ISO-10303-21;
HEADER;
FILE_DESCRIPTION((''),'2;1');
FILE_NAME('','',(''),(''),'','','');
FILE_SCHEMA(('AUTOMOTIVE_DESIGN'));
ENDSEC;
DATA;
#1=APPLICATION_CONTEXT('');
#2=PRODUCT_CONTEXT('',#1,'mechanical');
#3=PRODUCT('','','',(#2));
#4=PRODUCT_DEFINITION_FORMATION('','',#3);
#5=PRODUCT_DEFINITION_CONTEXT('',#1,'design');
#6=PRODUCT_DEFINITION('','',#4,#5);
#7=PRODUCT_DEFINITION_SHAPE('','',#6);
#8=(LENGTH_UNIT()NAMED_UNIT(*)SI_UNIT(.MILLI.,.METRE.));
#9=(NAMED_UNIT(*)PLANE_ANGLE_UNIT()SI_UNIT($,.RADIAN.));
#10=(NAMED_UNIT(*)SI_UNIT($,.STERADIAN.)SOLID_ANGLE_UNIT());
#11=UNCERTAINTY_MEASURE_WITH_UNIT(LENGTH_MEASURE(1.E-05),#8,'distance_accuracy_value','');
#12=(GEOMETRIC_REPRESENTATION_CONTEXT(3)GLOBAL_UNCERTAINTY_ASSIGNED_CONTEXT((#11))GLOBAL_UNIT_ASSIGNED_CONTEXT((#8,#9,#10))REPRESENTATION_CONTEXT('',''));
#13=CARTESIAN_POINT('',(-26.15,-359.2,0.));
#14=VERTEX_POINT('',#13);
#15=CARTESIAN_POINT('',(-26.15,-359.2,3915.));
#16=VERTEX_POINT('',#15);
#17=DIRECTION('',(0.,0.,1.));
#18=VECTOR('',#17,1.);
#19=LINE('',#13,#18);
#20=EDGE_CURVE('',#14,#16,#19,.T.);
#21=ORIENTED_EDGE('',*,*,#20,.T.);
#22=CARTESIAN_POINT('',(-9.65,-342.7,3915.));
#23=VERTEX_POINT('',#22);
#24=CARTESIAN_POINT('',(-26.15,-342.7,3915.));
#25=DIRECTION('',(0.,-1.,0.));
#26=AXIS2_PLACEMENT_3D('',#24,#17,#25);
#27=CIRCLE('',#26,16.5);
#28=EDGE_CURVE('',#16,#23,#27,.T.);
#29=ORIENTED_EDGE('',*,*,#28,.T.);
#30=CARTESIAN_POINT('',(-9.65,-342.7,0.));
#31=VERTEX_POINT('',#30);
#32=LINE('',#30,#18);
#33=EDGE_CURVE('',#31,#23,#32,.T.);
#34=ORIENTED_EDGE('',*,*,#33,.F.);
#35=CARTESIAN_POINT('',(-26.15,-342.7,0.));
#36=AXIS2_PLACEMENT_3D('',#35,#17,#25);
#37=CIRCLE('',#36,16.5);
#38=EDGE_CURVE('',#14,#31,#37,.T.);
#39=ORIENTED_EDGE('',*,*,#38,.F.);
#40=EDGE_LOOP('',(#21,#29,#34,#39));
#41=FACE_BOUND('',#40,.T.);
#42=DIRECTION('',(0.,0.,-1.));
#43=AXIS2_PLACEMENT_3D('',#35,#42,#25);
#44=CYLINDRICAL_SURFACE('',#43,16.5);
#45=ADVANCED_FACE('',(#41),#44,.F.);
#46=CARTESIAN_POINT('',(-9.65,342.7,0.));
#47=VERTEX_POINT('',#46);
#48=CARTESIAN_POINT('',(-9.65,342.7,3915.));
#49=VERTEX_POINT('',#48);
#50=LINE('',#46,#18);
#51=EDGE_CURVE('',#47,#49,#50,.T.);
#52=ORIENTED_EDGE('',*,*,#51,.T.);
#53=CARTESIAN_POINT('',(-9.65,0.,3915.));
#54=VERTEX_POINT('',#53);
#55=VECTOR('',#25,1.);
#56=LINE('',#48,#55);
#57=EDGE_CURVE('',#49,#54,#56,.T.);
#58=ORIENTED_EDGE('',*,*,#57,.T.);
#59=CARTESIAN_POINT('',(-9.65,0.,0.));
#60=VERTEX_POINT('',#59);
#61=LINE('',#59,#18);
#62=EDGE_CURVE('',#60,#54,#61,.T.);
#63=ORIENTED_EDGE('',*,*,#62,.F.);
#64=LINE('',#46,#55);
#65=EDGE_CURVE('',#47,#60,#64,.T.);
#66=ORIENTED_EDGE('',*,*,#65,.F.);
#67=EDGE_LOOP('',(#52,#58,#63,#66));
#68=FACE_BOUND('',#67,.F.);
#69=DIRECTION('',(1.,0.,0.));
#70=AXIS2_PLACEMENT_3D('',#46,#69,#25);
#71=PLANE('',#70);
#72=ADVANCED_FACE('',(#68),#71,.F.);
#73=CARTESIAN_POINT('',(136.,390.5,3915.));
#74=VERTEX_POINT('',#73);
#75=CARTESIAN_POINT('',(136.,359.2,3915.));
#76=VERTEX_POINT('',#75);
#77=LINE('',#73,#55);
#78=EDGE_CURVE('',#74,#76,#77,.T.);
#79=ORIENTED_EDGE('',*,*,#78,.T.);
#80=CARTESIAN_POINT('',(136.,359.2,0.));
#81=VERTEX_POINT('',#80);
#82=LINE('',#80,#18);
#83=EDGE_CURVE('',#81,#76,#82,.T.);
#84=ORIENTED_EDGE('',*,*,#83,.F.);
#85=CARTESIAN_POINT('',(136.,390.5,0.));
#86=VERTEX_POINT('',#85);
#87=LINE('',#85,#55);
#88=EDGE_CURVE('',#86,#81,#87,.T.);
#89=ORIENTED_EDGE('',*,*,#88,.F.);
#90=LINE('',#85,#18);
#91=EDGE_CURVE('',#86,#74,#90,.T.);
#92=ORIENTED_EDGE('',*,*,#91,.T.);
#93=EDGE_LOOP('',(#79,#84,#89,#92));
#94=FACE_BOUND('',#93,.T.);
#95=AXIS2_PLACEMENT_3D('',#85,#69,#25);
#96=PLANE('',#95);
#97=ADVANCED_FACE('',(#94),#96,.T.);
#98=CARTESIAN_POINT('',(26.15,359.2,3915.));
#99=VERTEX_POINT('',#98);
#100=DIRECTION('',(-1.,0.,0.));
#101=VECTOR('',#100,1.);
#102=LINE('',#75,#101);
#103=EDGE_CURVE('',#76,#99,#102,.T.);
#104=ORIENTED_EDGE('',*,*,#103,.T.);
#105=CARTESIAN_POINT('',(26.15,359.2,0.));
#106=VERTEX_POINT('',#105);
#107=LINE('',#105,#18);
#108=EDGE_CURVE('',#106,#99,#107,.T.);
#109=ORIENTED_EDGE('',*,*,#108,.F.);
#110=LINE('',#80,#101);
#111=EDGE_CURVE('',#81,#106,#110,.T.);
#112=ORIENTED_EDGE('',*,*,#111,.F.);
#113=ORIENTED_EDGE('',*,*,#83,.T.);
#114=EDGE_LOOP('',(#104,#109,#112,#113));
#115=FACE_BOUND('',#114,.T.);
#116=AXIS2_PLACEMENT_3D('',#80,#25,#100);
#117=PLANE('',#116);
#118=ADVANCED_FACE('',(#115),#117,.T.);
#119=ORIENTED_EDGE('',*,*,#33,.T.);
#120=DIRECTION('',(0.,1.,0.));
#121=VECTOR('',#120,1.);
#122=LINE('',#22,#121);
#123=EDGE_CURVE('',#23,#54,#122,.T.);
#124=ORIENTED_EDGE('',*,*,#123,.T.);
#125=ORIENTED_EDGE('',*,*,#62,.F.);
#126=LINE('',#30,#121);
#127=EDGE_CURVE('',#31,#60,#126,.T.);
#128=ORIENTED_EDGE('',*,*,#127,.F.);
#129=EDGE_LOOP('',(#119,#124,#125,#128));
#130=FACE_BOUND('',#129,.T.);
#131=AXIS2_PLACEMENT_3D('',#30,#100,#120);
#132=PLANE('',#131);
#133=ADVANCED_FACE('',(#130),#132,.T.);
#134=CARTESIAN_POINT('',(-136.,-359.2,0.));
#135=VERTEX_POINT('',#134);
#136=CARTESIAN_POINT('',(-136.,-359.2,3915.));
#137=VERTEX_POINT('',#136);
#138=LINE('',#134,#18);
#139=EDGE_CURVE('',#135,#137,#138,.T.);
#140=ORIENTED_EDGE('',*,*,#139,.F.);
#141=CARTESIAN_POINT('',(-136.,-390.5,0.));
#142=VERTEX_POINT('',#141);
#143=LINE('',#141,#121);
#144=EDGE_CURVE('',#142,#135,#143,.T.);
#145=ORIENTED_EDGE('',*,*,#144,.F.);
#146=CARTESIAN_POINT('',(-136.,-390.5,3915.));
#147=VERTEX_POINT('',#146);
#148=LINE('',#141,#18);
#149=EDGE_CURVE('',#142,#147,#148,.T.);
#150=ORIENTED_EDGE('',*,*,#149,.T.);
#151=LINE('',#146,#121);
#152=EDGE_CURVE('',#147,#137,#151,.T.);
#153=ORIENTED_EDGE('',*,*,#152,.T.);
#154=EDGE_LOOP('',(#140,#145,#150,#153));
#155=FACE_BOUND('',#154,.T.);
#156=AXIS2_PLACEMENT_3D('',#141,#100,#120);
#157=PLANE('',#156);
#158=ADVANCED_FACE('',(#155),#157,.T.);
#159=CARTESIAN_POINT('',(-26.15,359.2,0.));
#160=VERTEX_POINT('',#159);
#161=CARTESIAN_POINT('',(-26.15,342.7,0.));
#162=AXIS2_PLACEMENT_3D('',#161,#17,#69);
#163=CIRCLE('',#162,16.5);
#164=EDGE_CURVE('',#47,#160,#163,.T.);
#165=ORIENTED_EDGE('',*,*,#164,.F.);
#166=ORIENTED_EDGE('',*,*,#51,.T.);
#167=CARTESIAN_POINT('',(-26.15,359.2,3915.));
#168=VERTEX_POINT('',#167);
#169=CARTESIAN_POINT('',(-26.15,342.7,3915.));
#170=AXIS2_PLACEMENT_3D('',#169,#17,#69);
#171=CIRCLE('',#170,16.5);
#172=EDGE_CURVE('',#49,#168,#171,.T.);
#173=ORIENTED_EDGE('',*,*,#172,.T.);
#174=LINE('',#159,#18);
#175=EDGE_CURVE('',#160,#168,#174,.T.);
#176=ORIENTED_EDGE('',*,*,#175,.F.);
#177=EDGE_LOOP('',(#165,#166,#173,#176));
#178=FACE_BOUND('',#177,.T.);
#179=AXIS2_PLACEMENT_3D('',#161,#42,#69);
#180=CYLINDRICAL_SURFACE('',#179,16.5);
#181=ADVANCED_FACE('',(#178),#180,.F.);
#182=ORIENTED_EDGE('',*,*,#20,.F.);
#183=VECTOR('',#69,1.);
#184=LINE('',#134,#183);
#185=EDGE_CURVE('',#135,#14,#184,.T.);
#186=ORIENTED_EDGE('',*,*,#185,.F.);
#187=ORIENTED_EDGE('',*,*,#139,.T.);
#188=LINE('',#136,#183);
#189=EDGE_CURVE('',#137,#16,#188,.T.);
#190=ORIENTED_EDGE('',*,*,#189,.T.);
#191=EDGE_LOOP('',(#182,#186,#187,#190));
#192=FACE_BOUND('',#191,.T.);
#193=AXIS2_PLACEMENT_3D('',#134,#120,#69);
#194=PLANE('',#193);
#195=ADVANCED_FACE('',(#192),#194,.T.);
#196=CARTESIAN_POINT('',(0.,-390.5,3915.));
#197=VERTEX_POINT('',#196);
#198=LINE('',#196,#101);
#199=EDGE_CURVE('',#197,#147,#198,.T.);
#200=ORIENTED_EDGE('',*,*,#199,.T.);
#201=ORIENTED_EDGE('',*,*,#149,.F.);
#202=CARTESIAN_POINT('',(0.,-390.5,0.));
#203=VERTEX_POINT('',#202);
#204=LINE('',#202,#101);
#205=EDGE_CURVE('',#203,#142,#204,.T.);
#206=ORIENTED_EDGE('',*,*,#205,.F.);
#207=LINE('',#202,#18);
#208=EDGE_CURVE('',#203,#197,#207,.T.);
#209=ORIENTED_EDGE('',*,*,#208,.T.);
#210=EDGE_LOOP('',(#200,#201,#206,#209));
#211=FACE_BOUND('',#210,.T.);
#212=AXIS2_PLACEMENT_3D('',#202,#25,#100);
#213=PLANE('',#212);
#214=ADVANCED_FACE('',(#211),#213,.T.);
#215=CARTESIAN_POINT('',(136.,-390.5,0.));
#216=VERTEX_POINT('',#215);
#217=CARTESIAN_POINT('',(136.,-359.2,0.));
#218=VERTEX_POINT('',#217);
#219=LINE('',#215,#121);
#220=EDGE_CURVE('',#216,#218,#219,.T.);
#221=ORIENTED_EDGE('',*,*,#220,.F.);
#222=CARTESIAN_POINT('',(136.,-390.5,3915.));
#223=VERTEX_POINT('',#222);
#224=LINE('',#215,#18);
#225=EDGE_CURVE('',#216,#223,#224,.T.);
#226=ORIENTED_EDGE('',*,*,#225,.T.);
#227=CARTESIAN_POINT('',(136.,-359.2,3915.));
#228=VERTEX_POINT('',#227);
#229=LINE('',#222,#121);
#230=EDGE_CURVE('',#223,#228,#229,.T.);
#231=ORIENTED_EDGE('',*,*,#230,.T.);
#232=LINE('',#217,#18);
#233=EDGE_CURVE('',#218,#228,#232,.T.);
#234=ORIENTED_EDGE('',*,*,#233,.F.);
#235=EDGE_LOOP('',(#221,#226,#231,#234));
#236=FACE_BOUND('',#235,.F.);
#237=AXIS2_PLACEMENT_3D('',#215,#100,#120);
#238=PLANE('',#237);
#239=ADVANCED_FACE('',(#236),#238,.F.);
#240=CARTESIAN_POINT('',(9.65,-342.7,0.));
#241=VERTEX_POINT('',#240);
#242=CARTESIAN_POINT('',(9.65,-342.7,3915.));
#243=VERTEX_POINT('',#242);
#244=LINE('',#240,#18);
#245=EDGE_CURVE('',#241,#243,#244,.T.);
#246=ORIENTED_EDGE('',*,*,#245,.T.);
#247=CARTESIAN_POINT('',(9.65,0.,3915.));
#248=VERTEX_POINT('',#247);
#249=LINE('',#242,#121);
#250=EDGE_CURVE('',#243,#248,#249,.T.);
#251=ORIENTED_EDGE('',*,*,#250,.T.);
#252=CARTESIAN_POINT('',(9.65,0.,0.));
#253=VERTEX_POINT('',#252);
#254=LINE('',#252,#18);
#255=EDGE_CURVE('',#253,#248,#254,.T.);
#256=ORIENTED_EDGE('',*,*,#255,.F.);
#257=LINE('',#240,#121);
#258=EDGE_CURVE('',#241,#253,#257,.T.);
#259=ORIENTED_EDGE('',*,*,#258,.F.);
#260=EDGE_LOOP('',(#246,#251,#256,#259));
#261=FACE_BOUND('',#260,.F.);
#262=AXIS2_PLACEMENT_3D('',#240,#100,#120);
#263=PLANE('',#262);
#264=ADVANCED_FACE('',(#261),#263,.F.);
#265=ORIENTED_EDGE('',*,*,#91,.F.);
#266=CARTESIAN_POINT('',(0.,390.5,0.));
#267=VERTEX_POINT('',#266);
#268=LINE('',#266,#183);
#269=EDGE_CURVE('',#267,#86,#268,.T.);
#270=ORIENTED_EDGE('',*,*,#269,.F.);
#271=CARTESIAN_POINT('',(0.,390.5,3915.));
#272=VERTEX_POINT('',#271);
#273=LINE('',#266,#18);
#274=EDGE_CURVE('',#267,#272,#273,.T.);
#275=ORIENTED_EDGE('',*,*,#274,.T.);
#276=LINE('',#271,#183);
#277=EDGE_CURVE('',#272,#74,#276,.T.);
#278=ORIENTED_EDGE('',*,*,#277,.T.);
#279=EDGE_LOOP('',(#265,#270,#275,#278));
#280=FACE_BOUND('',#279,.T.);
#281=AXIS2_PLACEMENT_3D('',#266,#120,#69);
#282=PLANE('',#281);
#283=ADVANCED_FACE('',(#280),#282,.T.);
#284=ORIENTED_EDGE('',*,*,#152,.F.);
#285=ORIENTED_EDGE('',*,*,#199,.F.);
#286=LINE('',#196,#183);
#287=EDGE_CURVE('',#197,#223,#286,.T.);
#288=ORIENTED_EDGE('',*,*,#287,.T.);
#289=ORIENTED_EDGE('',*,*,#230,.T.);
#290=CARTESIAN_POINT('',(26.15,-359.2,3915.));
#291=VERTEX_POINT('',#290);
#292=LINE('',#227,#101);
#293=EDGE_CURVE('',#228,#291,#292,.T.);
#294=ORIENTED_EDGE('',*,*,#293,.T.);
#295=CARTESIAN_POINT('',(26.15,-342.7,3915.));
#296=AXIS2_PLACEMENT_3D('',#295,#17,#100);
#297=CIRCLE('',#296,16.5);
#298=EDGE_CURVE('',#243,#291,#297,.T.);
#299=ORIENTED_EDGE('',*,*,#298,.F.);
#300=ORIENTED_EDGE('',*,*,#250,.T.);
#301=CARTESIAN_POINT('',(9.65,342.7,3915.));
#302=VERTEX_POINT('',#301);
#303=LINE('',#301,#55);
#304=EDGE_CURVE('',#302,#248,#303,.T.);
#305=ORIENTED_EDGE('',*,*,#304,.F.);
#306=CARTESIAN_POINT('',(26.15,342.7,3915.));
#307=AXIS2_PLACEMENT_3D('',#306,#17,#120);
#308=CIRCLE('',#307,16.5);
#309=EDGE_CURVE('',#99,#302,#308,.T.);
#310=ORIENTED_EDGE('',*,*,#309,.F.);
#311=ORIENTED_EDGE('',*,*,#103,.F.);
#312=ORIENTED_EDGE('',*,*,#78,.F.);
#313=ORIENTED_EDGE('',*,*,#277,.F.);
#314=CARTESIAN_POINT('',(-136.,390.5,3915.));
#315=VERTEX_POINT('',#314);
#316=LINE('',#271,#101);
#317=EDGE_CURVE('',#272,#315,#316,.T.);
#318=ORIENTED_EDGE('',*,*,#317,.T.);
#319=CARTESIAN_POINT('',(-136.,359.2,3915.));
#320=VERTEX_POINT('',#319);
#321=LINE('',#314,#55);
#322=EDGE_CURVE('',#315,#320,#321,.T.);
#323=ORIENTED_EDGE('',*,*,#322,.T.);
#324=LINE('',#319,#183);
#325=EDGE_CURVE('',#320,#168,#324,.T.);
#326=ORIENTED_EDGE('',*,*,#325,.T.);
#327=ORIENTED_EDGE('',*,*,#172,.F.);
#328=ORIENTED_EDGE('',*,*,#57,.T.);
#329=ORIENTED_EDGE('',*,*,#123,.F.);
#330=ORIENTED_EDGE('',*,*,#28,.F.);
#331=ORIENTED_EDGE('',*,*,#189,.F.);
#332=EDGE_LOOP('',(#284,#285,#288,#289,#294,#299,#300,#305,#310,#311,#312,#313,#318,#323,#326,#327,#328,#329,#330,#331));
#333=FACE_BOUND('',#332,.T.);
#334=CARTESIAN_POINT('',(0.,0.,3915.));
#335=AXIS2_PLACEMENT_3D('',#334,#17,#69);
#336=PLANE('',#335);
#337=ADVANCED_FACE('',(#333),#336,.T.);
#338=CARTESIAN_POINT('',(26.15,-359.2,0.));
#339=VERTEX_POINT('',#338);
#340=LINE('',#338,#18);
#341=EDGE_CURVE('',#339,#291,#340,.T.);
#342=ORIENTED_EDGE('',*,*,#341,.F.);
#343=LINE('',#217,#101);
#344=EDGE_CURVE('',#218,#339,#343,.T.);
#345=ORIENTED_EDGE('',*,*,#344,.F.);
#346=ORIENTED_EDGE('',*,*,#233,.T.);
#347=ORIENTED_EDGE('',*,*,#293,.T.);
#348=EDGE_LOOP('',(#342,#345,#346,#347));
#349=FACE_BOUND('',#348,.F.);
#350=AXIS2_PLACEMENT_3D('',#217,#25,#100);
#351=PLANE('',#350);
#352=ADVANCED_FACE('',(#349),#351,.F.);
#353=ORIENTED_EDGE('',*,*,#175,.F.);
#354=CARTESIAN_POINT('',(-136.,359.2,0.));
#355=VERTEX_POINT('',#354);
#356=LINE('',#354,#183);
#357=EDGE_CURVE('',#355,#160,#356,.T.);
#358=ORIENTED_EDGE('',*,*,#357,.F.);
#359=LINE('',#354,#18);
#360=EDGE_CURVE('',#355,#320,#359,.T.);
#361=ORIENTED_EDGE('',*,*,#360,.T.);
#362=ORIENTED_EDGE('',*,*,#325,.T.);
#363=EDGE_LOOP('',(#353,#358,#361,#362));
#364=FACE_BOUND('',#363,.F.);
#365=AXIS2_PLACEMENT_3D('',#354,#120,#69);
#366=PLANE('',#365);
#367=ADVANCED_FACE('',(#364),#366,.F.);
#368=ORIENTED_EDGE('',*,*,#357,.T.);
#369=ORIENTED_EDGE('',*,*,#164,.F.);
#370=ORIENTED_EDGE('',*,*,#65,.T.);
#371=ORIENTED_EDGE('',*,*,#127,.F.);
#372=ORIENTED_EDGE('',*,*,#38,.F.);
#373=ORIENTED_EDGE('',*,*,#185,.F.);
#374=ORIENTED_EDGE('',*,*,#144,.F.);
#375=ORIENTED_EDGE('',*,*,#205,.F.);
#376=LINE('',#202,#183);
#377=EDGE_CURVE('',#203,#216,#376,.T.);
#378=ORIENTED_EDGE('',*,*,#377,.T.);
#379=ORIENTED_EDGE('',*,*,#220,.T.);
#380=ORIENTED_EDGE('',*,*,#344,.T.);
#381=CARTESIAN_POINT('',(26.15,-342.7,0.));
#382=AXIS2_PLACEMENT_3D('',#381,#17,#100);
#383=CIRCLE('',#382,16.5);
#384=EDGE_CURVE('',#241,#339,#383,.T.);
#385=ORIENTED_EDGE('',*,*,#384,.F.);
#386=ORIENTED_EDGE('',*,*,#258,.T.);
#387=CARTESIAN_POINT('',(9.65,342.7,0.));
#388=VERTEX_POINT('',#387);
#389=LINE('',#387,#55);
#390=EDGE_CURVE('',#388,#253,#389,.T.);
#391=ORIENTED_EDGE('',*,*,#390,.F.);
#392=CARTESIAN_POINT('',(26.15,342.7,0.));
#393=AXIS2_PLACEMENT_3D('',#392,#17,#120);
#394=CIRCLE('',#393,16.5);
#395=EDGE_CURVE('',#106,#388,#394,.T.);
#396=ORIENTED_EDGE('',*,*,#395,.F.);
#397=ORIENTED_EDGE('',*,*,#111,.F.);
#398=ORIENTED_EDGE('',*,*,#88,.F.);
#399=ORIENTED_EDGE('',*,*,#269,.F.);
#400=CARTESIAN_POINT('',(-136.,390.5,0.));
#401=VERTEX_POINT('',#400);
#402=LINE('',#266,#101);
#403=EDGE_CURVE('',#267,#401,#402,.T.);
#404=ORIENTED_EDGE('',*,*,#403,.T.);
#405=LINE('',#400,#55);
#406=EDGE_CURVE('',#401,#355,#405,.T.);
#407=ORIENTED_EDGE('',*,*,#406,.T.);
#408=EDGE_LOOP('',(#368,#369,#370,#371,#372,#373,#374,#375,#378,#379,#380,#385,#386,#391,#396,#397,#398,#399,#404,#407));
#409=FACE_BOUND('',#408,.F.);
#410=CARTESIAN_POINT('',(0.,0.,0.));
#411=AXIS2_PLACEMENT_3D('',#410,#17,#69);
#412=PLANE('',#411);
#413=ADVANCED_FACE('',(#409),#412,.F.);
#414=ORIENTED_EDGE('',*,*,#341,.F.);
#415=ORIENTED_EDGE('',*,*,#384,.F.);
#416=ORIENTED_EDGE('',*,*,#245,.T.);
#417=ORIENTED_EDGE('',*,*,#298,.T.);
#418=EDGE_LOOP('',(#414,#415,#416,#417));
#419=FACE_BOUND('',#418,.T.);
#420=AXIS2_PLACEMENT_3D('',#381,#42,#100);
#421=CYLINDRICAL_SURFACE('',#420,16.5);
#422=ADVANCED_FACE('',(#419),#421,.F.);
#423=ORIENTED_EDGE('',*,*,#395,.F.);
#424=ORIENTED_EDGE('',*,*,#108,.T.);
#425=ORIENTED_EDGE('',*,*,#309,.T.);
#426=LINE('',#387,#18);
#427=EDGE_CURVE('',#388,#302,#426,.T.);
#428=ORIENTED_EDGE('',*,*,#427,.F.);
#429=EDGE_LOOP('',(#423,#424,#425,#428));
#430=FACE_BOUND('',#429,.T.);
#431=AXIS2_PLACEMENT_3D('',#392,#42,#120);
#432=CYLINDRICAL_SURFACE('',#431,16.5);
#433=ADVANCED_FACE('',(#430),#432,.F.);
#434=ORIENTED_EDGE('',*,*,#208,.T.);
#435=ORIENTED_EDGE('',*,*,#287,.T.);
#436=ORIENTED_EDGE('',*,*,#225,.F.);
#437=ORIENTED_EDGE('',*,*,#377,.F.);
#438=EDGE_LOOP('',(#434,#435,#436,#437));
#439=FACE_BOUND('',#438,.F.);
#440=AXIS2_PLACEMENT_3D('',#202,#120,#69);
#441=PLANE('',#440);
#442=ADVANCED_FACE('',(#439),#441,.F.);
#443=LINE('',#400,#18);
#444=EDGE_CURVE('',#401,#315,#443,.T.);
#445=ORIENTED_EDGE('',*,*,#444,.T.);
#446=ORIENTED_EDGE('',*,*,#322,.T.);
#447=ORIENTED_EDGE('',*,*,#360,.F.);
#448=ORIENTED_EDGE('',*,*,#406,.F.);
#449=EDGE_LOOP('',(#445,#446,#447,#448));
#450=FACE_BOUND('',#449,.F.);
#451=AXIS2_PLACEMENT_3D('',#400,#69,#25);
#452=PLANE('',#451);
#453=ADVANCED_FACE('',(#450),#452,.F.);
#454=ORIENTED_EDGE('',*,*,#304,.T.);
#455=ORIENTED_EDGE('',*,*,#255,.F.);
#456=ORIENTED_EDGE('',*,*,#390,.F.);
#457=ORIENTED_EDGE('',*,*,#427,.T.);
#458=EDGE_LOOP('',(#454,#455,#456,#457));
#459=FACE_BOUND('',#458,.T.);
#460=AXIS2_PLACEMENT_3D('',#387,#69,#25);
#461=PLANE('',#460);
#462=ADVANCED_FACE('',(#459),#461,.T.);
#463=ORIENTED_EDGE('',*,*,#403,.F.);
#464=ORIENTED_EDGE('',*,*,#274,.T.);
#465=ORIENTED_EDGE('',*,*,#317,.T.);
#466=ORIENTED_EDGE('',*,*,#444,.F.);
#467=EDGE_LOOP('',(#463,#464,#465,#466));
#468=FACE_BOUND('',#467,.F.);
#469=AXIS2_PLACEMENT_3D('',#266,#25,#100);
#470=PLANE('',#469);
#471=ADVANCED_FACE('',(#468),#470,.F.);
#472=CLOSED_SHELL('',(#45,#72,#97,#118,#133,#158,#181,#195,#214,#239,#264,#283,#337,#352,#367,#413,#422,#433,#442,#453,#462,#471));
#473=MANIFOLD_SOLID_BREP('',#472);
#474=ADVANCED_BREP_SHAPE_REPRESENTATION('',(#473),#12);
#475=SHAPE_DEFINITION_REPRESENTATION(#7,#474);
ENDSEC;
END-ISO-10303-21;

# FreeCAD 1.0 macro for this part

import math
import FreeCAD as App
import Part
import Sketcher

V = App.Vector

doc = App.newDocument("Part")
params = doc.addObject("Spreadsheet::Sheet", "Params")
for row, (alias, value) in enumerate([
    ("sketch1_radius", "16.5 mm"),
    ("sketch1_height", "31.3 mm"),
    ("pad1_length", "3915 mm"),
], start=1):
    params.set(f"A{row}", alias)
    params.set(f"B{row}", "=" + value)
    params.setAlias(f"B{row}", alias)

body = doc.addObject("PartDesign::Body", "Body")

sketch1 = doc.addObject("Sketcher::SketchObject", "Sketch")
body.addObject(sketch1)
sketch1.AttachmentSupport = (doc.XY_Plane, [""])
sketch1.MapMode = "FlatFace"
sketch1.addGeometry([
    Part.LineSegment(V(-136, -359.2, 0), V(-136, -390.5, 0)),
    Part.LineSegment(V(-136, -390.5, 0), V(136, -390.5, 0)),
    Part.LineSegment(V(136, -390.5, 0), V(136, -359.2, 0)),
    Part.LineSegment(V(136, -359.2, 0), V(26.15, -359.2, 0)),
    Part.ArcOfCircle(Part.Circle(V(26.15, -342.7, 0), V(0, 0, 1), 16.5), math.radians(180), math.radians(270)),
    Part.LineSegment(V(9.65, -342.7, 0), V(9.65, 342.7, 0)),
    Part.ArcOfCircle(Part.Circle(V(26.15, 342.7, 0), V(0, 0, 1), 16.5), math.radians(90), math.radians(180)),
    Part.LineSegment(V(26.15, 359.2, 0), V(136, 359.2, 0)),
    Part.LineSegment(V(136, 359.2, 0), V(136, 390.5, 0)),
    Part.LineSegment(V(136, 390.5, 0), V(-136, 390.5, 0)),
    Part.LineSegment(V(-136, 390.5, 0), V(-136, 359.2, 0)),
    Part.LineSegment(V(-136, 359.2, 0), V(-26.15, 359.2, 0)),
    Part.ArcOfCircle(Part.Circle(V(-26.15, 342.7, 0), V(0, 0, 1), 16.5), math.radians(0), math.radians(90)),
    Part.LineSegment(V(-9.65, 342.7, 0), V(-9.65, -342.7, 0)),
    Part.ArcOfCircle(Part.Circle(V(-26.15, -342.7, 0), V(0, 0, 1), 16.5), math.radians(-90), math.radians(0)),
    Part.LineSegment(V(-26.15, -359.2, 0), V(-136, -359.2, 0)),
], False)
sketch1.addConstraint([
    Sketcher.Constraint("Coincident", 0, 2, 1, 1),
    Sketcher.Constraint("Coincident", 1, 2, 2, 1),
    Sketcher.Constraint("Coincident", 2, 2, 3, 1),
    Sketcher.Constraint("Tangent", 3, 2, 4, 2),
    Sketcher.Constraint("Tangent", 4, 1, 5, 1),
    Sketcher.Constraint("Tangent", 5, 2, 6, 2),
    Sketcher.Constraint("Tangent", 6, 1, 7, 1),
    Sketcher.Constraint("Coincident", 7, 2, 8, 1),
    Sketcher.Constraint("Coincident", 8, 2, 9, 1),
    Sketcher.Constraint("Coincident", 9, 2, 10, 1),
    Sketcher.Constraint("Coincident", 10, 2, 11, 1),
    Sketcher.Constraint("Tangent", 11, 2, 12, 2),
    Sketcher.Constraint("Tangent", 12, 1, 13, 1),
    Sketcher.Constraint("Tangent", 13, 2, 14, 2),
    Sketcher.Constraint("Tangent", 14, 1, 15, 1),
    Sketcher.Constraint("Coincident", 15, 2, 0, 1),
    Sketcher.Constraint("Vertical", 0),
    Sketcher.Constraint("Horizontal", 1),
    Sketcher.Constraint("Vertical", 2),
    Sketcher.Constraint("Horizontal", 3),
    Sketcher.Constraint("Vertical", 5),
    Sketcher.Constraint("Horizontal", 7),
    Sketcher.Constraint("Vertical", 8),
    Sketcher.Constraint("Horizontal", 9),
    Sketcher.Constraint("Vertical", 10),
    Sketcher.Constraint("Horizontal", 11),
    Sketcher.Constraint("Vertical", 13),
    Sketcher.Constraint("Horizontal", 15),
    Sketcher.Constraint("Equal", 4, 6),
    Sketcher.Constraint("Equal", 6, 12),
    Sketcher.Constraint("Equal", 12, 14),
    Sketcher.Constraint("Symmetric", 4, 3, 12, 3, -1, 1),
    Sketcher.Constraint("Symmetric", 0, 2, 8, 2, -1, 1),
    Sketcher.Constraint("Symmetric", 7, 2, 10, 2, -2),
    Sketcher.Constraint("Symmetric", 2, 2, 15, 2, -2),
    Sketcher.Constraint("Radius", 4, 16.5),
    Sketcher.Constraint("DistanceY", 0, 2, 0, 1, 31.3),
    Sketcher.Constraint("DistanceX", 0, 2, -1, 1, 136.0),
    Sketcher.Constraint("DistanceY", 0, 2, -1, 1, 390.5),
    Sketcher.Constraint("DistanceX", -1, 1, 4, 1, 9.65),
])
sketch1.setExpression("Constraints[35]", "Params.sketch1_radius")
sketch1.setExpression("Constraints[36]", "Params.sketch1_height")
pad1 = doc.addObject("PartDesign::Pad", "Pad")
body.addObject(pad1)
pad1.Profile = sketch1
pad1.setExpression("Length", "Params.pad1_length")

doc.recompute()
